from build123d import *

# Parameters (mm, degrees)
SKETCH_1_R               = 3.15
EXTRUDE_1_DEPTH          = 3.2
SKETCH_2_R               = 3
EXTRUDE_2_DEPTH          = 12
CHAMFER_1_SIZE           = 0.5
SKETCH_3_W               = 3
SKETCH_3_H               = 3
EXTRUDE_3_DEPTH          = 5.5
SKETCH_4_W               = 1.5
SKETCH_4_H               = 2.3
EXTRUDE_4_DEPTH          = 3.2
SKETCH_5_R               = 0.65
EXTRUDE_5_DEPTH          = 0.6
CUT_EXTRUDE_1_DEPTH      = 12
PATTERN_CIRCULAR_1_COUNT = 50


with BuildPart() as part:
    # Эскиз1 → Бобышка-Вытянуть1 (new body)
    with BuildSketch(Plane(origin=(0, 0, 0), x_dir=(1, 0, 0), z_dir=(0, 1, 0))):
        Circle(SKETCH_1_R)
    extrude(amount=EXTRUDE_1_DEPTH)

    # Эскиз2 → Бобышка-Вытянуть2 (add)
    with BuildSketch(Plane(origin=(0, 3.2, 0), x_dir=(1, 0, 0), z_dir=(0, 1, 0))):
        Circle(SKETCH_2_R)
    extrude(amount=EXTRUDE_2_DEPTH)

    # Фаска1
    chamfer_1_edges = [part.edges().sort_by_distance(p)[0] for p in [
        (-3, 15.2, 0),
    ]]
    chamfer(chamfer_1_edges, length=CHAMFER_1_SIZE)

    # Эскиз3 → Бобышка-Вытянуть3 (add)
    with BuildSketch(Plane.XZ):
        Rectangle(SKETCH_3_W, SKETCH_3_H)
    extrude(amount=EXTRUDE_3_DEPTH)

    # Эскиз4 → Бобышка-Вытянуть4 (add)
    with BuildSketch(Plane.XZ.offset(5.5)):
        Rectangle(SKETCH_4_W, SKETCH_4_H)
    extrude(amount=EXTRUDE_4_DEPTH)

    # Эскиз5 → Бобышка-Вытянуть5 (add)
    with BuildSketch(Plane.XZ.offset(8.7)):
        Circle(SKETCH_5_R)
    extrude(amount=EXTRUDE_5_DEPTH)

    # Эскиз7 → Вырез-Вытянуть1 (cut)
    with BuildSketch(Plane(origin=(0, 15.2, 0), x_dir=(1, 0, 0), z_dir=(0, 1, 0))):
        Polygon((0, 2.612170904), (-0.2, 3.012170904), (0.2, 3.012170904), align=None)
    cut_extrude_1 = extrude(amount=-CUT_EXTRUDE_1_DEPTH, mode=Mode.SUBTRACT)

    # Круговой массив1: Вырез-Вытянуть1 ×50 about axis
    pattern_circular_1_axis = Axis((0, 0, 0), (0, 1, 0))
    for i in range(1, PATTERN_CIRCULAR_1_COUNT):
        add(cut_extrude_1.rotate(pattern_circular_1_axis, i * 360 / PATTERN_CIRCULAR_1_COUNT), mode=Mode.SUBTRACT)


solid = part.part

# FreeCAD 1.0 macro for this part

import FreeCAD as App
import Part
import Sketcher
from FreeCAD import Vector


def edges_at(feature, points):
    """Names of the edges that pass closest to the given points."""
    edges = feature.Shape.Edges
    near = lambda p: min(range(len(edges)), key=lambda i: edges[i].distToShape(Part.Vertex(*p))[0])
    return sorted({f"Edge{near(p) + 1}" for p in points})


def add_polygon(sketch, points):
    """Adds a closed chain of lines whose ends are joined by coincident constraints."""
    first, n = sketch.GeometryCount, len(points)
    for a, b in zip(points, points[1:] + points[:1]):
        sketch.addGeometry(Part.LineSegment(App.Vector(*a, 0), App.Vector(*b, 0)), False)
    for i in range(n):
        sketch.addConstraint(Sketcher.Constraint("Coincident", first + i, 2, first + (i + 1) % n, 1))

doc = App.newDocument("Part")
body = doc.addObject("PartDesign::Body", "Body")

sketch1 = body.newObject("Sketcher::SketchObject", "Sketch")
sketch1.AttachmentSupport = (doc.getObject("XZ_Plane"), [""])
sketch1.MapMode = "FlatFace"
sketch1.addGeometry(Part.Circle(Vector(0, 0, 0), Vector(0, 0, 1), 3.15), False)
sketch1.addConstraint(Sketcher.Constraint("Coincident", 0, 3, -1, 1))
sketch1.addConstraint(Sketcher.Constraint("Diameter", 0, 6.3))
pad1 = body.newObject("PartDesign::Pad", "Pad")
pad1.Profile = sketch1
pad1.Length = 3.2
pad1.Reversed = True

sketch2 = body.newObject("Sketcher::SketchObject", "Sketch001")
sketch2.AttachmentSupport = (doc.getObject("XZ_Plane"), [""])
sketch2.MapMode = "FlatFace"
sketch2.AttachmentOffset = App.Placement(Vector(0, 0, -3.2), App.Rotation())
sketch2.addGeometry(Part.Circle(Vector(0, 0, 0), Vector(0, 0, 1), 3), False)
sketch2.addConstraint(Sketcher.Constraint("Coincident", 0, 3, -1, 1))
sketch2.addConstraint(Sketcher.Constraint("Diameter", 0, 6.0))
pad2 = body.newObject("PartDesign::Pad", "Pad001")
pad2.Profile = sketch2
pad2.Length = 12
pad2.Reversed = True
doc.recompute()

chamfer = body.newObject("PartDesign::Chamfer", "Chamfer")
chamfer.Base = (pad2, edges_at(pad2, [(-3, 15.2, 0)]))
chamfer.Size = 0.5

sketch3 = body.newObject("Sketcher::SketchObject", "Sketch002")
sketch3.AttachmentSupport = (doc.getObject("XZ_Plane"), [""])
sketch3.MapMode = "FlatFace"
add_polygon(sketch3, [(-1.5, 1.5), (-1.5, -1.5), (1.5, -1.5), (1.5, 1.5)])
sketch3.addConstraint(Sketcher.Constraint("Vertical", 0))
sketch3.addConstraint(Sketcher.Constraint("Horizontal", 1))
sketch3.addConstraint(Sketcher.Constraint("Vertical", 2))
sketch3.addConstraint(Sketcher.Constraint("Horizontal", 3))
sketch3.addConstraint(Sketcher.Constraint("Symmetric", 0, 2, 2, 2, -1, 1))
sketch3.addConstraint(Sketcher.Constraint("Equal", 3, 0))
sketch3.addConstraint(Sketcher.Constraint("DistanceX", 1, 1, 1, 2, 3.0))
pad3 = body.newObject("PartDesign::Pad", "Pad002")
pad3.Profile = sketch3
pad3.Length = 5.5

sketch4 = body.newObject("Sketcher::SketchObject", "Sketch003")
sketch4.AttachmentSupport = (doc.getObject("XZ_Plane"), [""])
sketch4.MapMode = "FlatFace"
sketch4.AttachmentOffset = App.Placement(Vector(0, 0, 5.5), App.Rotation())
add_polygon(sketch4, [(-0.75, 1.15), (-0.75, -1.15), (0.75, -1.15), (0.75, 1.15)])
sketch4.addConstraint(Sketcher.Constraint("Vertical", 0))
sketch4.addConstraint(Sketcher.Constraint("Horizontal", 1))
sketch4.addConstraint(Sketcher.Constraint("Vertical", 2))
sketch4.addConstraint(Sketcher.Constraint("Horizontal", 3))
sketch4.addConstraint(Sketcher.Constraint("Symmetric", 0, 2, 2, 2, -1, 1))
sketch4.addConstraint(Sketcher.Constraint("DistanceX", 1, 1, 1, 2, 1.5))
sketch4.addConstraint(Sketcher.Constraint("DistanceY", 0, 2, 0, 1, 2.3))
pad4 = body.newObject("PartDesign::Pad", "Pad003")
pad4.Profile = sketch4
pad4.Length = 3.2

sketch5 = body.newObject("Sketcher::SketchObject", "Sketch004")
sketch5.AttachmentSupport = (doc.getObject("XZ_Plane"), [""])
sketch5.MapMode = "FlatFace"
sketch5.AttachmentOffset = App.Placement(Vector(0, 0, 8.7), App.Rotation())
sketch5.addGeometry(Part.Circle(Vector(0, 0, 0), Vector(0, 0, 1), 0.65), False)
sketch5.addConstraint(Sketcher.Constraint("Coincident", 0, 3, -1, 1))
sketch5.addConstraint(Sketcher.Constraint("Diameter", 0, 1.3))
pad5 = body.newObject("PartDesign::Pad", "Pad004")
pad5.Profile = sketch5
pad5.Length = 0.6

sketch6 = body.newObject("Sketcher::SketchObject", "Sketch005")
sketch6.AttachmentSupport = (doc.getObject("XZ_Plane"), [""])
sketch6.MapMode = "FlatFace"
sketch6.AttachmentOffset = App.Placement(Vector(0, 0, -15.2), App.Rotation())
add_polygon(sketch6, [(-0.2, -3.012171), (0, -2.612171), (0.2, -3.012171)])
sketch6.addConstraint(Sketcher.Constraint("Horizontal", 2))
sketch6.addConstraint(Sketcher.Constraint("PointOnObject", 0, 2, -2))
sketch6.addConstraint(Sketcher.Constraint("Equal", 0, 1))
sketch6.addConstraint(Sketcher.Constraint("DistanceX", 2, 2, 2, 1, 0.4))
sketch6.addConstraint(Sketcher.Constraint("DistanceY", 1, 2, 0, 2, 0.4))
sketch6.addConstraint(Sketcher.Constraint("DistanceY", 0, 2, -1, 1, 2.612171))
pocket1 = body.newObject("PartDesign::Pocket", "Pocket")
pocket1.Profile = sketch6
pocket1.Length = 12
pocket1.Reversed = True
doc.recompute()

polarpattern = body.newObject("PartDesign::PolarPattern", "PolarPattern")
polarpattern.Originals = [pocket1]
polarpattern.Axis = (doc.getObject("Y_Axis"), [""])
polarpattern.Angle = 360
polarpattern.Occurrences = 50
body.Tip = polarpattern

doc.recompute()
